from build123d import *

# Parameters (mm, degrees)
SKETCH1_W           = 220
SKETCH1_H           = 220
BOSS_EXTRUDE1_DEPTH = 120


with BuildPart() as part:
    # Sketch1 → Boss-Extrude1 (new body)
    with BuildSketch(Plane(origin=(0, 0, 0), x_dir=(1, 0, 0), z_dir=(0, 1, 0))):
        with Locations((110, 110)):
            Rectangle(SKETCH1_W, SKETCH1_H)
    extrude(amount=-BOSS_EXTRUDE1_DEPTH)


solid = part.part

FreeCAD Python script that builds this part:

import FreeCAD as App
import Part
import Sketcher


def add_polygon(sketch, points):
    """Adds a closed chain of lines whose ends are joined by coincident constraints."""
    first, n = sketch.GeometryCount, len(points)
    for a, b in zip(points, points[1:] + points[:1]):
        sketch.addGeometry(Part.LineSegment(App.Vector(*a, 0), App.Vector(*b, 0)), False)
    for i in range(n):
        sketch.addConstraint(Sketcher.Constraint("Coincident", first + i, 2, first + (i + 1) % n, 1))

doc = App.newDocument("Part")
body = doc.addObject("PartDesign::Body", "Body")

sketch1 = body.newObject("Sketcher::SketchObject", "Sketch")
sketch1.AttachmentSupport = (doc.getObject("XZ_Plane"), [""])
sketch1.MapMode = "FlatFace"
add_polygon(sketch1, [(0, -220), (0, 0), (220, 0), (220, -220)])
sketch1.addConstraint(Sketcher.Constraint("Vertical", 0))
sketch1.addConstraint(Sketcher.Constraint("Horizontal", 1))
sketch1.addConstraint(Sketcher.Constraint("Vertical", 2))
sketch1.addConstraint(Sketcher.Constraint("Horizontal", 3))
sketch1.addConstraint(Sketcher.Constraint("Coincident", 0, 2, -1, 1))
sketch1.addConstraint(Sketcher.Constraint("Equal", 3, 0))
sketch1.addConstraint(Sketcher.Constraint("DistanceX", 1, 1, 1, 2, 220.0))
pad1 = body.newObject("PartDesign::Pad", "Pad")
pad1.Profile = sketch1
pad1.Length = 120

doc.recompute()
